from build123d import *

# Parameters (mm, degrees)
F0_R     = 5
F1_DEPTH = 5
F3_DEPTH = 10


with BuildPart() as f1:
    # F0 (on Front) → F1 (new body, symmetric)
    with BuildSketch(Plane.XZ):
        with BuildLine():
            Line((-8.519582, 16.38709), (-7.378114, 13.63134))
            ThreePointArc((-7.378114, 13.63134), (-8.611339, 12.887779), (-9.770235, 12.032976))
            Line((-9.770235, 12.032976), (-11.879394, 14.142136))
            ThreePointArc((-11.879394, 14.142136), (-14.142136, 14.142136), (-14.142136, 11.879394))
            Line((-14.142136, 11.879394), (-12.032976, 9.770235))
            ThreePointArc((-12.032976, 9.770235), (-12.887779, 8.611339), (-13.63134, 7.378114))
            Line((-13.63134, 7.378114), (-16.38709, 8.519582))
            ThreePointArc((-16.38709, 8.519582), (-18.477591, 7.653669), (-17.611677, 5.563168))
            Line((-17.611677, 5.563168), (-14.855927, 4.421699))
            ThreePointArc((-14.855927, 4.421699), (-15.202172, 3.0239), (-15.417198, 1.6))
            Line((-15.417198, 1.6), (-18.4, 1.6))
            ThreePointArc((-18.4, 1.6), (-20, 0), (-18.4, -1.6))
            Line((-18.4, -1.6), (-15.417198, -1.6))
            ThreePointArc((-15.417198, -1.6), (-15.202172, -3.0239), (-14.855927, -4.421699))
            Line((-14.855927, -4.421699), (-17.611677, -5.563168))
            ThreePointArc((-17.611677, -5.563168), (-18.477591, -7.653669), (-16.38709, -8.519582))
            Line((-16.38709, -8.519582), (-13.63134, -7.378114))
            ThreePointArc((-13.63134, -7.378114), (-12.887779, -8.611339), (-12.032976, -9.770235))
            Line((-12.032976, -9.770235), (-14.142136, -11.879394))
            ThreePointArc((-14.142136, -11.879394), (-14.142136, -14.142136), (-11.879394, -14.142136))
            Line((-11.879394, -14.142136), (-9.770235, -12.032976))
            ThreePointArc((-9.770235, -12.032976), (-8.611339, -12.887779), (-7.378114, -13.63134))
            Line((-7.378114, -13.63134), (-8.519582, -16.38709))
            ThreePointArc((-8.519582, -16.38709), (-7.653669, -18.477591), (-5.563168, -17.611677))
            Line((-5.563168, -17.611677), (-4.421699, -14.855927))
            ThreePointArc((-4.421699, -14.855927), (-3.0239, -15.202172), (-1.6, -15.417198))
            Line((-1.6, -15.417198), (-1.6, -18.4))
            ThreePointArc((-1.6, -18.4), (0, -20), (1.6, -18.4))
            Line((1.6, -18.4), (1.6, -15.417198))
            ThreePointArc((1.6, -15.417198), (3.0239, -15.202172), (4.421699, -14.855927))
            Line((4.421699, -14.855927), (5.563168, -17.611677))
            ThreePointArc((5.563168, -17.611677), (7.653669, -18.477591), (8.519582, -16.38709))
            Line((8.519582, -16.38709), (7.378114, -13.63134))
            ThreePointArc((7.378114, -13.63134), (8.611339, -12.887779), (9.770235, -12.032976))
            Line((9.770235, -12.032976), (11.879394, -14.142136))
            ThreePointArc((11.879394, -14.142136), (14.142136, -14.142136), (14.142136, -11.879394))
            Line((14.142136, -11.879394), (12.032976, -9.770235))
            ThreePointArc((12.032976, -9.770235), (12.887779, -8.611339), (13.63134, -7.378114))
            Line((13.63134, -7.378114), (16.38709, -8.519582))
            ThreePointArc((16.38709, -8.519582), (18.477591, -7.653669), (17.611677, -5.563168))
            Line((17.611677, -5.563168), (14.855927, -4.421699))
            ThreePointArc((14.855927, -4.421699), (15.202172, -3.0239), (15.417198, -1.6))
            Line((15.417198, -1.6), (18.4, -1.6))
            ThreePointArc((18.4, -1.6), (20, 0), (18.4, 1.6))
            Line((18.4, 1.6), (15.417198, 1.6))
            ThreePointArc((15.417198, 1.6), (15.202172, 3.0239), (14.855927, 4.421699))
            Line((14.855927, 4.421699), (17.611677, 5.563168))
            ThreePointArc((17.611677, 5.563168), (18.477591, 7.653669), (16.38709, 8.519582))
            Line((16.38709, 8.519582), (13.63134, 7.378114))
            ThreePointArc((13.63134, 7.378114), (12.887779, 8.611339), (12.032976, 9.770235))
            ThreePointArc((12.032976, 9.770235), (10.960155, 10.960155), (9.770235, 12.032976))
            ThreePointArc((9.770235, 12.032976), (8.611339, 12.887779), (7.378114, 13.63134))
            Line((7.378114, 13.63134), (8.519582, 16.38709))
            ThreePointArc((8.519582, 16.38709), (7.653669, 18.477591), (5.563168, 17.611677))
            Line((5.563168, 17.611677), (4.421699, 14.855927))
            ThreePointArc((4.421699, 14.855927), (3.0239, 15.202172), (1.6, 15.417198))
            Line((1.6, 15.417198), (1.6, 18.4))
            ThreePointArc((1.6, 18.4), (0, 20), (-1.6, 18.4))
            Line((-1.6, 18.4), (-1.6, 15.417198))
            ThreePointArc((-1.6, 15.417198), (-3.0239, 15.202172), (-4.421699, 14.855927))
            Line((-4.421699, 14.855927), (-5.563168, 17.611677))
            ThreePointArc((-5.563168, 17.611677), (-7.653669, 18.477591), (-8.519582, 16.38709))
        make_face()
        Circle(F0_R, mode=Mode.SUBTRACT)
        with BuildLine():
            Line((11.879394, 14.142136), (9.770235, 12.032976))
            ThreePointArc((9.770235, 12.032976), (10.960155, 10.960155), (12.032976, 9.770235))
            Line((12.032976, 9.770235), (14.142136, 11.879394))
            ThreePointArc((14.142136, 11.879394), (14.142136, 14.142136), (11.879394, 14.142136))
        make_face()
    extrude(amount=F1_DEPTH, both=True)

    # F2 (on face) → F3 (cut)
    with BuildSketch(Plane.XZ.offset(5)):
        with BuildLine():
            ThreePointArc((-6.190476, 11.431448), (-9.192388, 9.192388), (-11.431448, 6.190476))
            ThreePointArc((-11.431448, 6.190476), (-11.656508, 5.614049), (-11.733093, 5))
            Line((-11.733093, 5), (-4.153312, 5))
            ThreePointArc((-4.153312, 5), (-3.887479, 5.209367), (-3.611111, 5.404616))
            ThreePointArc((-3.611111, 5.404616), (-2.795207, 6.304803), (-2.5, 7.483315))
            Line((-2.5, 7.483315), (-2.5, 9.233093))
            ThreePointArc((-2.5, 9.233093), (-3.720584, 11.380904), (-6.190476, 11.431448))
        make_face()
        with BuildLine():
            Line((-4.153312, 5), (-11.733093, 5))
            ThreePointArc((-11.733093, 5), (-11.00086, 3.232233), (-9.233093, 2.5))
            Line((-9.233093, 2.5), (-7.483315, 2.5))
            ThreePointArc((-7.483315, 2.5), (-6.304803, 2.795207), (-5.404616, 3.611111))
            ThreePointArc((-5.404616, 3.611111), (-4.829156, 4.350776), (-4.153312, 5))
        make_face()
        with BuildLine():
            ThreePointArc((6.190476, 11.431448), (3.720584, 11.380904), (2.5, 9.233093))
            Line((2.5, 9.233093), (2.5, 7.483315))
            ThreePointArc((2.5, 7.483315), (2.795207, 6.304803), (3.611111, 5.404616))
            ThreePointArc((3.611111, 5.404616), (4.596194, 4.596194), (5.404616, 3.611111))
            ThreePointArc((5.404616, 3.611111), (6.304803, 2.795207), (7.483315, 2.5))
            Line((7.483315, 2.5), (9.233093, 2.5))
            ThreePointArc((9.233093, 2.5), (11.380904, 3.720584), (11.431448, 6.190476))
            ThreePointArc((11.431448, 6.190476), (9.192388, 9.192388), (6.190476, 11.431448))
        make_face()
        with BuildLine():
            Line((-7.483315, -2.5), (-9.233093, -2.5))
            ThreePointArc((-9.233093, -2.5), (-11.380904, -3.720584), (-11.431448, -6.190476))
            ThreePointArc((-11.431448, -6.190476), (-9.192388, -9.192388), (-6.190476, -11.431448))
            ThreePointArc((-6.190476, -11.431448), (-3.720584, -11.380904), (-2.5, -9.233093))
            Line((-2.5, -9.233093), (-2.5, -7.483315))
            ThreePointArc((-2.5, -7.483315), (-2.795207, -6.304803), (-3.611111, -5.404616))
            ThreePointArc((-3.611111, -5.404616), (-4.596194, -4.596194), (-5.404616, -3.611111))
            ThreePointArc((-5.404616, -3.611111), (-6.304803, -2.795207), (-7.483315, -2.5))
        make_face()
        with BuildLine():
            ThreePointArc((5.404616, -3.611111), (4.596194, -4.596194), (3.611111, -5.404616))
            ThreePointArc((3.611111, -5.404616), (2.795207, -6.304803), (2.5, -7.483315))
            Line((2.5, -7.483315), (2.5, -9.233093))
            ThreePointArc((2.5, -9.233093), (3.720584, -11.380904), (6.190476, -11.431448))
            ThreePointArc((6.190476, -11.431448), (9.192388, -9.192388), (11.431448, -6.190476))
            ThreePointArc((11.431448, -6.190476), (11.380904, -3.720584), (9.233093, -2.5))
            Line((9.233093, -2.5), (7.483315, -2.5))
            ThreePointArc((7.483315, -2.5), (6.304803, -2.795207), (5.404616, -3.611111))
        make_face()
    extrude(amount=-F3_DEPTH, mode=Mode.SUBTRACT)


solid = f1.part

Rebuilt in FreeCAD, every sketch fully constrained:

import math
import FreeCAD as App
import Part
import Sketcher

V = App.Vector
Q = App.Units.Quantity

doc = App.newDocument("Part")
body = doc.addObject("PartDesign::Body", "Body")

# Sketch on XZ plane
sketch1 = body.newObject("Sketcher::SketchObject", "Sketch")
sketch1.AttachmentSupport = (doc.getObject("XZ_Plane"), [""])
sketch1.MapMode = "FlatFace"
sketch1.addGeometry(Part.LineSegment(V(-8.519582, 16.38709, 0), V(-7.378114, 13.63134, 0)), False)
sketch1.addGeometry(Part.ArcOfCircle(Part.Circle(V(-0.00003, 0.000043, 0), V(0, 0, 1), 15.499948), math.radians(118.424937), math.radians(129.075058)), False)
sketch1.addGeometry(Part.LineSegment(V(-9.770235, 12.032976, 0), V(-11.879394, 14.142136, 0)), False)
sketch1.addGeometry(Part.ArcOfCircle(Part.Circle(V(-13.010765, 13.010765, 0), V(0, 0, 1), 1.6), math.radians(45), math.radians(225)), False)
sketch1.addGeometry(Part.LineSegment(V(-14.142136, 11.879394, 0), V(-12.032976, 9.770235, 0)), False)
sketch1.addGeometry(Part.ArcOfCircle(Part.Circle(V(-0.000043, 0.00003, 0), V(0, 0, 1), 15.499948), math.radians(140.924942), math.radians(151.575063)), False)
sketch1.addGeometry(Part.LineSegment(V(-13.63134, 7.378114, 0), V(-16.38709, 8.519582, 0)), False)
sketch1.addGeometry(Part.ArcOfCircle(Part.Circle(V(-16.999384, 7.041375, 0), V(0, 0, 1), 1.6), math.radians(67.499973), math.radians(247.50002)), False)
sketch1.addGeometry(Part.LineSegment(V(-17.611677, 5.563168, 0), V(-14.855927, 4.421699, 0)), False)
sketch1.addGeometry(Part.ArcOfCircle(Part.Circle(V(-0.000096, 0.000018, 0), V(0, 0, 1), 15.499902), math.radians(163.42492), math.radians(174.075073)), False)
sketch1.addGeometry(Part.LineSegment(V(-15.417198, 1.6, 0), V(-18.4, 1.6, 0)), False)
sketch1.addGeometry(Part.ArcOfCircle(Part.Circle(V(-18.4, 0, 0), V(0, 0, 1), 1.6), math.radians(90), math.radians(270)), False)
sketch1.addGeometry(Part.LineSegment(V(-18.4, -1.6, 0), V(-15.417198, -1.6, 0)), False)
sketch1.addGeometry(Part.ArcOfCircle(Part.Circle(V(-0.000096, -0.000018, 0), V(0, 0, 1), 15.499902), math.radians(-174.075073), math.radians(-163.42492)), False)
sketch1.addGeometry(Part.LineSegment(V(-14.855927, -4.421699, 0), V(-17.611677, -5.563168, 0)), False)
sketch1.addGeometry(Part.ArcOfCircle(Part.Circle(V(-16.999384, -7.041375, 0), V(0, 0, 1), 1.6), math.radians(112.49998), math.radians(292.500027)), False)
sketch1.addGeometry(Part.LineSegment(V(-16.38709, -8.519582, 0), V(-13.63134, -7.378114, 0)), False)
sketch1.addGeometry(Part.ArcOfCircle(Part.Circle(V(-0.000043, -0.00003, 0), V(0, 0, 1), 15.499948), math.radians(-151.575063), math.radians(-140.924942)), False)
sketch1.addGeometry(Part.LineSegment(V(-12.032976, -9.770235, 0), V(-14.142136, -11.879394, 0)), False)
sketch1.addGeometry(Part.ArcOfCircle(Part.Circle(V(-13.010765, -13.010765, 0), V(0, 0, 1), 1.6), math.radians(135), math.radians(315)), False)
sketch1.addGeometry(Part.LineSegment(V(-11.879394, -14.142136, 0), V(-9.770235, -12.032976, 0)), False)
sketch1.addGeometry(Part.ArcOfCircle(Part.Circle(V(-0.00003, -0.000043, 0), V(0, 0, 1), 15.499948), math.radians(-129.075058), math.radians(-118.424937)), False)
sketch1.addGeometry(Part.LineSegment(V(-7.378114, -13.63134, 0), V(-8.519582, -16.38709, 0)), False)
sketch1.addGeometry(Part.ArcOfCircle(Part.Circle(V(-7.041375, -16.999384, 0), V(0, 0, 1), 1.6), math.radians(157.499973), math.radians(337.50002)), False)
sketch1.addGeometry(Part.LineSegment(V(-5.563168, -17.611677, 0), V(-4.421699, -14.855927, 0)), False)
sketch1.addGeometry(Part.ArcOfCircle(Part.Circle(V(-0.000018, -0.000096, 0), V(0, 0, 1), 15.499902), math.radians(-106.57508), math.radians(-95.924927)), False)
sketch1.addGeometry(Part.LineSegment(V(-1.6, -15.417198, 0), V(-1.6, -18.4, 0)), False)
sketch1.addGeometry(Part.ArcOfCircle(Part.Circle(V(0, -18.4, 0), V(0, 0, 1), 1.6), math.radians(180), math.radians(360)), False)
sketch1.addGeometry(Part.LineSegment(V(1.6, -18.4, 0), V(1.6, -15.417198, 0)), False)
sketch1.addGeometry(Part.ArcOfCircle(Part.Circle(V(0.000018, -0.000096, 0), V(0, 0, 1), 15.499902), math.radians(-84.075073), math.radians(-73.42492)), False)
sketch1.addGeometry(Part.LineSegment(V(4.421699, -14.855927, 0), V(5.563168, -17.611677, 0)), False)
sketch1.addGeometry(Part.ArcOfCircle(Part.Circle(V(7.041375, -16.999384, 0), V(0, 0, 1), 1.6), math.radians(-157.50002), math.radians(22.500027)), False)
sketch1.addGeometry(Part.LineSegment(V(8.519582, -16.38709, 0), V(7.378114, -13.63134, 0)), False)
sketch1.addGeometry(Part.ArcOfCircle(Part.Circle(V(0.00003, -0.000043, 0), V(0, 0, 1), 15.499948), math.radians(-61.575063), math.radians(-50.924942)), False)
sketch1.addGeometry(Part.LineSegment(V(9.770235, -12.032976, 0), V(11.879394, -14.142136, 0)), False)
sketch1.addGeometry(Part.ArcOfCircle(Part.Circle(V(13.010765, -13.010765, 0), V(0, 0, 1), 1.6), math.radians(-135), math.radians(45)), False)
sketch1.addGeometry(Part.LineSegment(V(14.142136, -11.879394, 0), V(12.032976, -9.770235, 0)), False)
sketch1.addGeometry(Part.ArcOfCircle(Part.Circle(V(0.000043, -0.00003, 0), V(0, 0, 1), 15.499948), math.radians(-39.075058), math.radians(-28.424937)), False)
sketch1.addGeometry(Part.LineSegment(V(13.63134, -7.378114, 0), V(16.38709, -8.519582, 0)), False)
sketch1.addGeometry(Part.ArcOfCircle(Part.Circle(V(16.999384, -7.041375, 0), V(0, 0, 1), 1.6), math.radians(-112.500027), math.radians(67.50002)), False)
sketch1.addGeometry(Part.LineSegment(V(17.611677, -5.563168, 0), V(14.855927, -4.421699, 0)), False)
sketch1.addGeometry(Part.ArcOfCircle(Part.Circle(V(0.000096, -0.000018, 0), V(0, 0, 1), 15.499902), math.radians(-16.57508), math.radians(-5.924927)), False)
sketch1.addGeometry(Part.LineSegment(V(15.417198, -1.6, 0), V(18.4, -1.6, 0)), False)
sketch1.addGeometry(Part.ArcOfCircle(Part.Circle(V(18.4, 0, 0), V(0, 0, 1), 1.6), math.radians(-90), math.radians(90)), False)
sketch1.addGeometry(Part.LineSegment(V(18.4, 1.6, 0), V(15.417198, 1.6, 0)), False)
sketch1.addGeometry(Part.ArcOfCircle(Part.Circle(V(0.000096, 0.000018, 0), V(0, 0, 1), 15.499902), math.radians(5.924927), math.radians(16.57508)), False)
sketch1.addGeometry(Part.LineSegment(V(14.855927, 4.421699, 0), V(17.611677, 5.563168, 0)), False)
sketch1.addGeometry(Part.ArcOfCircle(Part.Circle(V(16.999384, 7.041375, 0), V(0, 0, 1), 1.6), math.radians(-67.50002), math.radians(112.500027)), False)
sketch1.addGeometry(Part.LineSegment(V(16.38709, 8.519582, 0), V(13.63134, 7.378114, 0)), False)
sketch1.addGeometry(Part.ArcOfCircle(Part.Circle(V(0.000043, 0.00003, 0), V(0, 0, 1), 15.499948), math.radians(28.424937), math.radians(39.075058)), False)
sketch1.addGeometry(Part.LineSegment(V(12.032976, 9.770235, 0), V(14.142136, 11.879394, 0)), False)
sketch1.addGeometry(Part.ArcOfCircle(Part.Circle(V(13.010765, 13.010765, 0), V(0, 0, 1), 1.6), math.radians(-45), math.radians(135)), False)
sketch1.addGeometry(Part.LineSegment(V(11.879394, 14.142136, 0), V(9.770235, 12.032976, 0)), False)
sketch1.addGeometry(Part.ArcOfCircle(Part.Circle(V(0.00003, 0.000043, 0), V(0, 0, 1), 15.499948), math.radians(50.924942), math.radians(61.575063)), False)
sketch1.addGeometry(Part.LineSegment(V(7.378114, 13.63134, 0), V(8.519582, 16.38709, 0)), False)
sketch1.addGeometry(Part.ArcOfCircle(Part.Circle(V(7.041375, 16.999384, 0), V(0, 0, 1), 1.6), math.radians(-22.500027), math.radians(157.50002)), False)
sketch1.addGeometry(Part.LineSegment(V(5.563168, 17.611677, 0), V(4.421699, 14.855927, 0)), False)
sketch1.addGeometry(Part.ArcOfCircle(Part.Circle(V(0.000018, 0.000096, 0), V(0, 0, 1), 15.499902), math.radians(73.42492), math.radians(84.075073)), False)
sketch1.addGeometry(Part.LineSegment(V(1.6, 15.417198, 0), V(1.6, 18.4, 0)), False)
sketch1.addGeometry(Part.ArcOfCircle(Part.Circle(V(0, 18.4, 0), V(0, 0, 1), 1.6), math.radians(0), math.radians(180)), False)
sketch1.addGeometry(Part.LineSegment(V(-1.6, 18.4, 0), V(-1.6, 15.417198, 0)), False)
sketch1.addGeometry(Part.ArcOfCircle(Part.Circle(V(-0.000018, 0.000096, 0), V(0, 0, 1), 15.499902), math.radians(95.924927), math.radians(106.57508)), False)
sketch1.addGeometry(Part.LineSegment(V(-4.421699, 14.855927, 0), V(-5.563168, 17.611677, 0)), False)
sketch1.addGeometry(Part.ArcOfCircle(Part.Circle(V(-7.041375, 16.999384, 0), V(0, 0, 1), 1.6), math.radians(22.49998), math.radians(202.500027)), False)
sketch1.addGeometry(Part.Circle(V(0, 0, 0), V(0, 0, 1), 5), False)
sketch1.addConstraint(Sketcher.Constraint("Coincident", 0, 2, 1, 1))
sketch1.addConstraint(Sketcher.Constraint("Coincident", 1, 2, 2, 1))
sketch1.addConstraint(Sketcher.Constraint("Tangent", 2, 2, 3, 1))
sketch1.addConstraint(Sketcher.Constraint("Tangent", 3, 2, 4, 1))
sketch1.addConstraint(Sketcher.Constraint("Coincident", 4, 2, 5, 1))
sketch1.addConstraint(Sketcher.Constraint("Coincident", 5, 2, 6, 1))
sketch1.addConstraint(Sketcher.Constraint("Tangent", 6, 2, 7, 1))
sketch1.addConstraint(Sketcher.Constraint("Tangent", 7, 2, 8, 1))
sketch1.addConstraint(Sketcher.Constraint("Coincident", 8, 2, 9, 1))
sketch1.addConstraint(Sketcher.Constraint("Coincident", 9, 2, 10, 1))
sketch1.addConstraint(Sketcher.Constraint("Tangent", 10, 2, 11, 1))
sketch1.addConstraint(Sketcher.Constraint("Tangent", 11, 2, 12, 1))
sketch1.addConstraint(Sketcher.Constraint("Coincident", 12, 2, 13, 1))
sketch1.addConstraint(Sketcher.Constraint("Coincident", 13, 2, 14, 1))
sketch1.addConstraint(Sketcher.Constraint("Tangent", 14, 2, 15, 1))
sketch1.addConstraint(Sketcher.Constraint("Tangent", 15, 2, 16, 1))
sketch1.addConstraint(Sketcher.Constraint("Coincident", 16, 2, 17, 1))
sketch1.addConstraint(Sketcher.Constraint("Coincident", 17, 2, 18, 1))
sketch1.addConstraint(Sketcher.Constraint("Tangent", 18, 2, 19, 1))
sketch1.addConstraint(Sketcher.Constraint("Tangent", 19, 2, 20, 1))
sketch1.addConstraint(Sketcher.Constraint("Coincident", 20, 2, 21, 1))
sketch1.addConstraint(Sketcher.Constraint("Coincident", 21, 2, 22, 1))
sketch1.addConstraint(Sketcher.Constraint("Tangent", 22, 2, 23, 1))
sketch1.addConstraint(Sketcher.Constraint("Tangent", 23, 2, 24, 1))
sketch1.addConstraint(Sketcher.Constraint("Coincident", 24, 2, 25, 1))
sketch1.addConstraint(Sketcher.Constraint("Coincident", 25, 2, 26, 1))
sketch1.addConstraint(Sketcher.Constraint("Tangent", 26, 2, 27, 1))
sketch1.addConstraint(Sketcher.Constraint("Tangent", 27, 2, 28, 1))
sketch1.addConstraint(Sketcher.Constraint("Coincident", 28, 2, 29, 1))
sketch1.addConstraint(Sketcher.Constraint("Coincident", 29, 2, 30, 1))
sketch1.addConstraint(Sketcher.Constraint("Tangent", 30, 2, 31, 1))
sketch1.addConstraint(Sketcher.Constraint("Tangent", 31, 2, 32, 1))
sketch1.addConstraint(Sketcher.Constraint("Coincident", 32, 2, 33, 1))
sketch1.addConstraint(Sketcher.Constraint("Coincident", 33, 2, 34, 1))
sketch1.addConstraint(Sketcher.Constraint("Tangent", 34, 2, 35, 1))
sketch1.addConstraint(Sketcher.Constraint("Tangent", 35, 2, 36, 1))
sketch1.addConstraint(Sketcher.Constraint("Coincident", 36, 2, 37, 1))
sketch1.addConstraint(Sketcher.Constraint("Coincident", 37, 2, 38, 1))
sketch1.addConstraint(Sketcher.Constraint("Tangent", 38, 2, 39, 1))
sketch1.addConstraint(Sketcher.Constraint("Tangent", 39, 2, 40, 1))
sketch1.addConstraint(Sketcher.Constraint("Coincident", 40, 2, 41, 1))
sketch1.addConstraint(Sketcher.Constraint("Coincident", 41, 2, 42, 1))
sketch1.addConstraint(Sketcher.Constraint("Tangent", 42, 2, 43, 1))
sketch1.addConstraint(Sketcher.Constraint("Tangent", 43, 2, 44, 1))
sketch1.addConstraint(Sketcher.Constraint("Coincident", 44, 2, 45, 1))
sketch1.addConstraint(Sketcher.Constraint("Coincident", 45, 2, 46, 1))
sketch1.addConstraint(Sketcher.Constraint("Tangent", 46, 2, 47, 1))
sketch1.addConstraint(Sketcher.Constraint("Tangent", 47, 2, 48, 1))
sketch1.addConstraint(Sketcher.Constraint("Coincident", 48, 2, 49, 1))
sketch1.addConstraint(Sketcher.Constraint("Coincident", 49, 2, 50, 1))
sketch1.addConstraint(Sketcher.Constraint("Tangent", 50, 2, 51, 1))
sketch1.addConstraint(Sketcher.Constraint("Tangent", 51, 2, 52, 1))
sketch1.addConstraint(Sketcher.Constraint("Coincident", 52, 2, 53, 1))
sketch1.addConstraint(Sketcher.Constraint("Coincident", 53, 2, 54, 1))
sketch1.addConstraint(Sketcher.Constraint("Tangent", 54, 2, 55, 1))
sketch1.addConstraint(Sketcher.Constraint("Tangent", 55, 2, 56, 1))
sketch1.addConstraint(Sketcher.Constraint("Coincident", 56, 2, 57, 1))
sketch1.addConstraint(Sketcher.Constraint("Coincident", 57, 2, 58, 1))
sketch1.addConstraint(Sketcher.Constraint("Tangent", 58, 2, 59, 1))
sketch1.addConstraint(Sketcher.Constraint("Tangent", 59, 2, 60, 1))
sketch1.addConstraint(Sketcher.Constraint("Coincident", 60, 2, 61, 1))
sketch1.addConstraint(Sketcher.Constraint("Coincident", 61, 2, 62, 1))
sketch1.addConstraint(Sketcher.Constraint("Tangent", 62, 2, 63, 1))
sketch1.addConstraint(Sketcher.Constraint("Tangent", 63, 2, 0, 1))
sketch1.addConstraint(Sketcher.Constraint("Horizontal", 10))
sketch1.addConstraint(Sketcher.Constraint("Horizontal", 12))
sketch1.addConstraint(Sketcher.Constraint("Vertical", 26))
sketch1.addConstraint(Sketcher.Constraint("Vertical", 28))
sketch1.addConstraint(Sketcher.Constraint("Horizontal", 42))
sketch1.addConstraint(Sketcher.Constraint("Horizontal", 44))
sketch1.addConstraint(Sketcher.Constraint("Vertical", 58))
sketch1.addConstraint(Sketcher.Constraint("Vertical", 60))
sketch1.addConstraint(Sketcher.Constraint("Coincident", 64, 3, -1, 1))
sketch1.addConstraint(Sketcher.Constraint("Equal", 1, 5))
sketch1.addConstraint(Sketcher.Constraint("Equal", 3, 7))
sketch1.addConstraint(Sketcher.Constraint("Equal", 7, 11))
sketch1.addConstraint(Sketcher.Constraint("Equal", 9, 13))
sketch1.addConstraint(Sketcher.Constraint("Equal", 11, 15))
sketch1.addConstraint(Sketcher.Constraint("Equal", 5, 17))
sketch1.addConstraint(Sketcher.Constraint("Equal", 15, 19))
sketch1.addConstraint(Sketcher.Constraint("Equal", 17, 21))
sketch1.addConstraint(Sketcher.Constraint("Equal", 19, 23))
sketch1.addConstraint(Sketcher.Constraint("Equal", 13, 25))
sketch1.addConstraint(Sketcher.Constraint("Equal", 23, 27))
sketch1.addConstraint(Sketcher.Constraint("Equal", 25, 29))
sketch1.addConstraint(Sketcher.Constraint("Equal", 27, 31))
sketch1.addConstraint(Sketcher.Constraint("Equal", 21, 33))
sketch1.addConstraint(Sketcher.Constraint("Equal", 31, 35))
sketch1.addConstraint(Sketcher.Constraint("Equal", 33, 37))
sketch1.addConstraint(Sketcher.Constraint("Equal", 35, 39))
sketch1.addConstraint(Sketcher.Constraint("Equal", 29, 41))
sketch1.addConstraint(Sketcher.Constraint("Equal", 39, 43))
sketch1.addConstraint(Sketcher.Constraint("Equal", 41, 45))
sketch1.addConstraint(Sketcher.Constraint("Equal", 43, 47))
sketch1.addConstraint(Sketcher.Constraint("Equal", 37, 49))
sketch1.addConstraint(Sketcher.Constraint("Equal", 47, 51))
sketch1.addConstraint(Sketcher.Constraint("Equal", 49, 53))
sketch1.addConstraint(Sketcher.Constraint("Equal", 51, 55))
sketch1.addConstraint(Sketcher.Constraint("Equal", 45, 57))
sketch1.addConstraint(Sketcher.Constraint("Equal", 55, 59))
sketch1.addConstraint(Sketcher.Constraint("Equal", 57, 61))
sketch1.addConstraint(Sketcher.Constraint("Equal", 59, 63))
sketch1.addConstraint(Sketcher.Constraint("Symmetric", 1, 3, 33, 3, -1, 1))
sketch1.addConstraint(Sketcher.Constraint("Symmetric", 3, 3, 35, 3, -1, 1))
sketch1.addConstraint(Sketcher.Constraint("Symmetric", 5, 3, 37, 3, -1, 1))
sketch1.addConstraint(Sketcher.Constraint("Symmetric", 7, 3, 39, 3, -1, 1))
sketch1.addConstraint(Sketcher.Constraint("Symmetric", 9, 3, 41, 3, -1, 1))
sketch1.addConstraint(Sketcher.Constraint("Symmetric", 11, 3, 43, 3, -1, 1))
sketch1.addConstraint(Sketcher.Constraint("Symmetric", 13, 3, 45, 3, -1, 1))
sketch1.addConstraint(Sketcher.Constraint("Symmetric", 15, 3, 47, 3, -1, 1))
sketch1.addConstraint(Sketcher.Constraint("Symmetric", 17, 3, 49, 3, -1, 1))
sketch1.addConstraint(Sketcher.Constraint("Symmetric", 19, 3, 51, 3, -1, 1))
sketch1.addConstraint(Sketcher.Constraint("Symmetric", 21, 3, 53, 3, -1, 1))
sketch1.addConstraint(Sketcher.Constraint("Symmetric", 23, 3, 55, 3, -1, 1))
sketch1.addConstraint(Sketcher.Constraint("Symmetric", 25, 3, 57, 3, -1, 1))
sketch1.addConstraint(Sketcher.Constraint("Symmetric", 27, 3, 59, 3, -1, 1))
sketch1.addConstraint(Sketcher.Constraint("Symmetric", 29, 3, 61, 3, -1, 1))
sketch1.addConstraint(Sketcher.Constraint("Symmetric", 31, 3, 63, 3, -1, 1))
sketch1.addConstraint(Sketcher.Constraint("Symmetric", 25, 3, 29, 3, -2))
sketch1.addConstraint(Sketcher.Constraint("Symmetric", 23, 3, 31, 3, -2))
sketch1.addConstraint(Sketcher.Constraint("Symmetric", 21, 3, 33, 3, -2))
sketch1.addConstraint(Sketcher.Constraint("Symmetric", 19, 3, 35, 3, -2))
sketch1.addConstraint(Sketcher.Constraint("Symmetric", 17, 3, 37, 3, -2))
sketch1.addConstraint(Sketcher.Constraint("Symmetric", 15, 3, 39, 3, -2))
sketch1.addConstraint(Sketcher.Constraint("Symmetric", 13, 3, 41, 3, -2))
sketch1.addConstraint(Sketcher.Constraint("PointOnObject", 11, 3, -1))
sketch1.addConstraint(Sketcher.Constraint("PointOnObject", 27, 3, -2))
sketch1.addConstraint(Sketcher.Constraint("Parallel", 2, 4))
sketch1.addConstraint(Sketcher.Constraint("Parallel", 6, 8))
sketch1.addConstraint(Sketcher.Constraint("Perpendicular", 0, 14))
sketch1.addConstraint(Sketcher.Constraint("Parallel", 14, 16))
sketch1.addConstraint(Sketcher.Constraint("Perpendicular", 4, 18))
sketch1.addConstraint(Sketcher.Constraint("Parallel", 18, 20))
sketch1.addConstraint(Sketcher.Constraint("Perpendicular", 8, 22))
sketch1.addConstraint(Sketcher.Constraint("Parallel", 22, 24))
sketch1.addConstraint(Sketcher.Constraint("Perpendicular", 16, 30))
sketch1.addConstraint(Sketcher.Constraint("Parallel", 30, 32))
sketch1.addConstraint(Sketcher.Constraint("Perpendicular", 20, 34))
sketch1.addConstraint(Sketcher.Constraint("Parallel", 34, 36))
sketch1.addConstraint(Sketcher.Constraint("Perpendicular", 24, 38))
sketch1.addConstraint(Sketcher.Constraint("Parallel", 38, 40))
sketch1.addConstraint(Sketcher.Constraint("Perpendicular", 32, 46))
sketch1.addConstraint(Sketcher.Constraint("Parallel", 46, 48))
sketch1.addConstraint(Sketcher.Constraint("Perpendicular", 36, 50))
sketch1.addConstraint(Sketcher.Constraint("Parallel", 50, 52))
sketch1.addConstraint(Sketcher.Constraint("Perpendicular", 40, 54))
sketch1.addConstraint(Sketcher.Constraint("Parallel", 54, 56))
sketch1.addConstraint(Sketcher.Constraint("Perpendicular", 48, 62))
sketch1.addConstraint(Sketcher.Constraint("Horizontal", 24, 2, 29, 2))
sketch1.addConstraint(Sketcher.Constraint("Horizontal", 20, 2, 33, 2))
sketch1.addConstraint(Sketcher.Constraint("Equal", 44, 26))
sketch1.addConstraint(Sketcher.Constraint("Equal", 0, 2))
sketch1.addConstraint(Sketcher.Constraint("Equal", 2, 4))
sketch1.addConstraint(Sketcher.Constraint("Equal", 4, 6))
sketch1.addConstraint(Sketcher.Constraint("Equal", 6, 8))
sketch1.addConstraint(Sketcher.Constraint("Equal", 22, 24))
sketch1.addConstraint(Sketcher.Constraint("Diameter", 64, Q("10 mm")))
sketch1.addConstraint(Sketcher.Constraint("Radius", 3, Q("1.6 mm")))
sketch1.addConstraint(Sketcher.Constraint("Angle", 0, Q("-67.500018 deg")))
sketch1.addConstraint(Sketcher.Constraint("DistanceX", 11, 3, -1, 1, Q("18.4 mm")))
sketch1.addConstraint(Sketcher.Constraint("DistanceY", 27, 3, -1, 1, Q("18.4 mm")))
sketch1.addConstraint(Sketcher.Constraint("DistanceX", 10, 2, 10, 1, Q("2.982802 mm")))
sketch1.addConstraint(Sketcher.Constraint("Radius", 1, Q("15.499948 mm")))
sketch1.addConstraint(Sketcher.Constraint("Radius", 9, Q("15.499902 mm")))
sketch1.addConstraint(Sketcher.Constraint("Distance", 0, Q("2.982802 mm")))
sketch1.addConstraint(Sketcher.Constraint("DistanceY", -1, 1, 8, 2, Q("4.421699 mm")))
sketch1.addConstraint(Sketcher.Constraint("DistanceX", 24, 2, -1, 1, Q("4.421699 mm")))
sketch1.addConstraint(Sketcher.Constraint("DistanceY", -1, 1, 0, 2, Q("13.63134 mm")))
sketch1.addConstraint(Sketcher.Constraint("DistanceX", 5, 2, -1, 1, Q("13.63134 mm")))
sketch1.addConstraint(Sketcher.Constraint("DistanceX", 3, 3, -1, 1, Q("13.010765 mm")))
sketch1.addConstraint(Sketcher.Constraint("DistanceY", -1, 1, 3, 3, Q("13.010765 mm")))
pad1 = body.newObject("PartDesign::Pad", "Pad")
pad1.Profile = sketch1
pad1.Length = 10
pad1.Midplane = True

# Sketch on XZ plane
sketch2 = body.newObject("Sketcher::SketchObject", "Sketch001")
sketch2.AttachmentSupport = (doc.getObject("XZ_Plane"), [""])
sketch2.MapMode = "FlatFace"
sketch2.AttachmentOffset = App.Placement(V(0, 0, 5), App.Rotation())
sketch2.addGeometry(Part.ArcOfCircle(Part.Circle(V(0.000001, -0.000001, 0), V(0, 0, 1), 13.000002), math.radians(118.436892), math.radians(151.563108)), False)
sketch2.addGeometry(Part.ArcOfCircle(Part.Circle(V(-9.233078, 4.999995, 0), V(0, 0, 1), 2.500015), math.radians(151.56318), math.radians(179.999889)), False)
sketch2.addGeometry(Part.ArcOfCircle(Part.Circle(V(-9.233093, 5, 0), V(0, 0, 1), 2.5), math.radians(179.999996), math.radians(270.000004)), False)
sketch2.addGeometry(Part.LineSegment(V(-9.233093, 2.5, 0), V(-7.483315, 2.5, 0)), False)
sketch2.addGeometry(Part.ArcOfCircle(Part.Circle(V(-7.483313, 4.999998, 0), V(0, 0, 1), 2.499998), math.radians(-90.000039), math.radians(-33.748965)), False)
sketch2.addGeometry(Part.ArcOfCircle(Part.Circle(V(-0.000004, 0.000005, 0), V(0, 0, 1), 6.499994), math.radians(129.715139), math.radians(146.251028)), False)
sketch2.addGeometry(Part.ArcOfCircle(Part.Circle(V(0.000037, -0.000054, 0), V(0, 0, 1), 6.500065), math.radians(123.748994), math.radians(129.715083)), False)
sketch2.addGeometry(Part.ArcOfCircle(Part.Circle(V(-4.999998, 7.483313, 0), V(0, 0, 1), 2.499998), math.radians(-56.251035), math.radians(0.000039)), False)
sketch2.addGeometry(Part.LineSegment(V(-2.5, 7.483315, 0), V(-2.5, 9.233093, 0)), False)
sketch2.addGeometry(Part.ArcOfCircle(Part.Circle(V(-5, 9.233092, 0), V(0, 0, 1), 2.5), math.radians(0.000015), math.radians(118.436881)), False)
sketch2.addGeometry(Part.ArcOfCircle(Part.Circle(V(5, 9.233092, 0), V(0, 0, 1), 2.5), math.radians(61.563119), math.radians(179.999985)), False)
sketch2.addGeometry(Part.LineSegment(V(2.5, 9.233093, 0), V(2.5, 7.483315, 0)), False)
sketch2.addGeometry(Part.ArcOfCircle(Part.Circle(V(4.999998, 7.483313, 0), V(0, 0, 1), 2.499998), math.radians(179.999961), math.radians(236.251035)), False)
sketch2.addGeometry(Part.ArcOfCircle(Part.Circle(V(0.000005, 0.000005, 0), V(0, 0, 1), 6.499993), math.radians(33.748976), math.radians(56.251024)), False)
sketch2.addGeometry(Part.ArcOfCircle(Part.Circle(V(7.483313, 4.999998, 0), V(0, 0, 1), 2.499998), math.radians(-146.251035), math.radians(-89.999961)), False)
sketch2.addGeometry(Part.LineSegment(V(7.483315, 2.5, 0), V(9.233093, 2.5, 0)), False)
sketch2.addGeometry(Part.ArcOfCircle(Part.Circle(V(9.233092, 5, 0), V(0, 0, 1), 2.5), math.radians(-89.999985), math.radians(28.436881)), False)
sketch2.addGeometry(Part.ArcOfCircle(Part.Circle(V(-0.000001, -0.000001, 0), V(0, 0, 1), 13.000002), math.radians(28.436892), math.radians(61.563108)), False)
sketch2.addGeometry(Part.LineSegment(V(-7.483315, -2.5, 0), V(-9.233093, -2.5, 0)), False)
sketch2.addGeometry(Part.ArcOfCircle(Part.Circle(V(-9.233092, -5, 0), V(0, 0, 1), 2.5), math.radians(90.000015), math.radians(208.436881)), False)
sketch2.addGeometry(Part.ArcOfCircle(Part.Circle(V(0.000001, 0.000001, 0), V(0, 0, 1), 13.000002), math.radians(-151.563108), math.radians(-118.436892)), False)
sketch2.addGeometry(Part.ArcOfCircle(Part.Circle(V(-5, -9.233092, 0), V(0, 0, 1), 2.5), math.radians(-118.436881), math.radians(-0.000015)), False)
sketch2.addGeometry(Part.LineSegment(V(-2.5, -9.233093, 0), V(-2.5, -7.483315, 0)), False)
sketch2.addGeometry(Part.ArcOfCircle(Part.Circle(V(-4.999998, -7.483313, 0), V(0, 0, 1), 2.499998), math.radians(-0.000039), math.radians(56.251035)), False)
sketch2.addGeometry(Part.ArcOfCircle(Part.Circle(V(-0.000005, -0.000005, 0), V(0, 0, 1), 6.499993), math.radians(-146.251024), math.radians(-123.748976)), False)
sketch2.addGeometry(Part.ArcOfCircle(Part.Circle(V(-7.483313, -4.999998, 0), V(0, 0, 1), 2.499998), math.radians(33.748965), math.radians(90.000039)), False)
sketch2.addGeometry(Part.ArcOfCircle(Part.Circle(V(0.000005, -0.000005, 0), V(0, 0, 1), 6.499993), math.radians(-56.251024), math.radians(-33.748976)), False)
sketch2.addGeometry(Part.ArcOfCircle(Part.Circle(V(4.999998, -7.483313, 0), V(0, 0, 1), 2.499998), math.radians(123.748965), math.radians(180.000039)), False)
sketch2.addGeometry(Part.LineSegment(V(2.5, -7.483315, 0), V(2.5, -9.233093, 0)), False)
sketch2.addGeometry(Part.ArcOfCircle(Part.Circle(V(5, -9.233092, 0), V(0, 0, 1), 2.5), math.radians(-179.999985), math.radians(-61.563119)), False)
sketch2.addGeometry(Part.ArcOfCircle(Part.Circle(V(-0.000001, 0.000001, 0), V(0, 0, 1), 13.000002), math.radians(-61.563108), math.radians(-28.436892)), False)
sketch2.addGeometry(Part.ArcOfCircle(Part.Circle(V(9.233092, -5, 0), V(0, 0, 1), 2.5), math.radians(-28.436881), math.radians(89.999985)), False)
sketch2.addGeometry(Part.LineSegment(V(9.233093, -2.5, 0), V(7.483315, -2.5, 0)), False)
sketch2.addGeometry(Part.ArcOfCircle(Part.Circle(V(7.483313, -4.999998, 0), V(0, 0, 1), 2.499998), math.radians(89.999961), math.radians(146.251035)), False)
sketch2.addConstraint(Sketcher.Constraint("Coincident", 0, 2, 1, 1))
sketch2.addConstraint(Sketcher.Constraint("Coincident", 1, 2, 2, 1))
sketch2.addConstraint(Sketcher.Constraint("Coincident", 2, 2, 3, 1))
sketch2.addConstraint(Sketcher.Constraint("Coincident", 3, 2, 4, 1))
sketch2.addConstraint(Sketcher.Constraint("Coincident", 4, 2, 5, 2))
sketch2.addConstraint(Sketcher.Constraint("Coincident", 5, 1, 6, 2))
sketch2.addConstraint(Sketcher.Constraint("Coincident", 6, 1, 7, 1))
sketch2.addConstraint(Sketcher.Constraint("Coincident", 7, 2, 8, 1))
sketch2.addConstraint(Sketcher.Constraint("Coincident", 8, 2, 9, 1))
sketch2.addConstraint(Sketcher.Constraint("Coincident", 9, 2, 0, 1))
sketch2.addConstraint(Sketcher.Constraint("Coincident", 10, 2, 11, 1))
sketch2.addConstraint(Sketcher.Constraint("Coincident", 11, 2, 12, 1))
sketch2.addConstraint(Sketcher.Constraint("Coincident", 12, 2, 13, 2))
sketch2.addConstraint(Sketcher.Constraint("Coincident", 13, 1, 14, 1))
sketch2.addConstraint(Sketcher.Constraint("Coincident", 14, 2, 15, 1))
sketch2.addConstraint(Sketcher.Constraint("Coincident", 15, 2, 16, 1))
sketch2.addConstraint(Sketcher.Constraint("Coincident", 16, 2, 17, 1))
sketch2.addConstraint(Sketcher.Constraint("Coincident", 17, 2, 10, 1))
sketch2.addConstraint(Sketcher.Constraint("Coincident", 18, 2, 19, 1))
sketch2.addConstraint(Sketcher.Constraint("Coincident", 19, 2, 20, 1))
sketch2.addConstraint(Sketcher.Constraint("Coincident", 20, 2, 21, 1))
sketch2.addConstraint(Sketcher.Constraint("Coincident", 21, 2, 22, 1))
sketch2.addConstraint(Sketcher.Constraint("Coincident", 22, 2, 23, 1))
sketch2.addConstraint(Sketcher.Constraint("Coincident", 23, 2, 24, 2))
sketch2.addConstraint(Sketcher.Constraint("Coincident", 24, 1, 25, 1))
sketch2.addConstraint(Sketcher.Constraint("Coincident", 25, 2, 18, 1))
sketch2.addConstraint(Sketcher.Constraint("Coincident", 26, 1, 27, 1))
sketch2.addConstraint(Sketcher.Constraint("Coincident", 27, 2, 28, 1))
sketch2.addConstraint(Sketcher.Constraint("Coincident", 28, 2, 29, 1))
sketch2.addConstraint(Sketcher.Constraint("Coincident", 29, 2, 30, 1))
sketch2.addConstraint(Sketcher.Constraint("Coincident", 30, 2, 31, 1))
sketch2.addConstraint(Sketcher.Constraint("Coincident", 31, 2, 32, 1))
sketch2.addConstraint(Sketcher.Constraint("Coincident", 32, 2, 33, 1))
sketch2.addConstraint(Sketcher.Constraint("Coincident", 33, 2, 26, 2))
sketch2.addConstraint(Sketcher.Constraint("Horizontal", 3))
sketch2.addConstraint(Sketcher.Constraint("Vertical", 8))
sketch2.addConstraint(Sketcher.Constraint("Vertical", 11))
sketch2.addConstraint(Sketcher.Constraint("Horizontal", 15))
sketch2.addConstraint(Sketcher.Constraint("Horizontal", 18))
sketch2.addConstraint(Sketcher.Constraint("Vertical", 22))
sketch2.addConstraint(Sketcher.Constraint("Vertical", 28))
sketch2.addConstraint(Sketcher.Constraint("Horizontal", 32))
sketch2.addConstraint(Sketcher.Constraint("Coincident", 0, 3, -1, 1))
sketch2.addConstraint(Sketcher.Constraint("Coincident", 5, 3, -1, 1))
sketch2.addConstraint(Sketcher.Constraint("Coincident", 13, 3, -1, 1))
sketch2.addConstraint(Sketcher.Constraint("Coincident", 17, 3, -1, 1))
sketch2.addConstraint(Sketcher.Constraint("Coincident", 20, 3, -1, 1))
sketch2.addConstraint(Sketcher.Constraint("Coincident", 24, 3, -1, 1))
sketch2.addConstraint(Sketcher.Constraint("Coincident", 26, 3, -1, 1))
sketch2.addConstraint(Sketcher.Constraint("Coincident", 30, 3, -1, 1))
sketch2.addConstraint(Sketcher.Constraint("Radius", 0, Q("13.000002 mm")))
sketch2.addConstraint(Sketcher.Constraint("Radius", 17, Q("13.000002 mm")))
sketch2.addConstraint(Sketcher.Constraint("Radius", 20, Q("13.000002 mm")))
sketch2.addConstraint(Sketcher.Constraint("Radius", 30, Q("13.000002 mm")))
sketch2.addConstraint(Sketcher.Constraint("Radius", 2, Q("2.5 mm")))
sketch2.addConstraint(Sketcher.Constraint("Radius", 9, Q("2.5 mm")))
sketch2.addConstraint(Sketcher.Constraint("Radius", 10, Q("2.5 mm")))
sketch2.addConstraint(Sketcher.Constraint("Radius", 16, Q("2.5 mm")))
sketch2.addConstraint(Sketcher.Constraint("Radius", 19, Q("2.5 mm")))
sketch2.addConstraint(Sketcher.Constraint("Radius", 21, Q("2.5 mm")))
sketch2.addConstraint(Sketcher.Constraint("Radius", 29, Q("2.5 mm")))
sketch2.addConstraint(Sketcher.Constraint("Radius", 31, Q("2.5 mm")))
sketch2.addConstraint(Sketcher.Constraint("DistanceY", -1, 1, 2, 3, Q("5 mm")))
sketch2.addConstraint(Sketcher.Constraint("DistanceX", 9, 3, -1, 1, Q("5 mm")))
sketch2.addConstraint(Sketcher.Constraint("DistanceX", -1, 1, 10, 3, Q("5 mm")))
sketch2.addConstraint(Sketcher.Constraint("DistanceY", -1, 1, 16, 3, Q("5 mm")))
sketch2.addConstraint(Sketcher.Constraint("DistanceY", 19, 3, -1, 1, Q("5 mm")))
sketch2.addConstraint(Sketcher.Constraint("DistanceX", 21, 3, -1, 1, Q("5 mm")))
sketch2.addConstraint(Sketcher.Constraint("DistanceX", -1, 1, 29, 3, Q("5 mm")))
sketch2.addConstraint(Sketcher.Constraint("DistanceY", 31, 3, -1, 1, Q("5 mm")))
sketch2.addConstraint(Sketcher.Constraint("DistanceY", -1, 1, 1, 2, Q("5 mm")))
sketch2.addConstraint(Sketcher.Constraint("DistanceY", -1, 1, 5, 1, Q("5 mm")))
sketch2.addConstraint(Sketcher.Constraint("DistanceY", 0, 3, 4, 3, Q("4.999999 mm")))
sketch2.addConstraint(Sketcher.Constraint("DistanceX", 7, 3, 0, 3, Q("4.999999 mm")))
sketch2.addConstraint(Sketcher.Constraint("DistanceX", 5, 3, 12, 3, Q("5.000002 mm")))
sketch2.addConstraint(Sketcher.Constraint("DistanceY", 0, 3, 14, 3, Q("4.999999 mm")))
sketch2.addConstraint(Sketcher.Constraint("DistanceX", 23, 3, 0, 3, Q("4.999999 mm")))
sketch2.addConstraint(Sketcher.Constraint("DistanceX", 17, 3, 27, 3, Q("4.999999 mm")))
sketch2.addConstraint(Sketcher.Constraint("DistanceX", 1, 2, 2, 2, Q("2.5 mm")))
sketch2.addConstraint(Sketcher.Constraint("DistanceX", 4, 3, 5, 1, Q("3.330001 mm")))
sketch2.addConstraint(Sketcher.Constraint("Radius", 1, Q("2.500015 mm")))
sketch2.addConstraint(Sketcher.Constraint("Radius", 6, Q("6.500065 mm")))
sketch2.addConstraint(Sketcher.Constraint("Radius", 13, Q("6.499993 mm")))
sketch2.addConstraint(Sketcher.Constraint("Radius", 24, Q("6.499993 mm")))
sketch2.addConstraint(Sketcher.Constraint("Radius", 25, Q("2.499998 mm")))
sketch2.addConstraint(Sketcher.Constraint("Radius", 26, Q("6.499993 mm")))
sketch2.addConstraint(Sketcher.Constraint("Radius", 33, Q("2.499998 mm")))
sketch2.addConstraint(Sketcher.Constraint("DistanceX", 3, 1, 3, 2, Q("1.749778 mm")))
sketch2.addConstraint(Sketcher.Constraint("DistanceX", 15, 1, 15, 2, Q("1.749778 mm")))
sketch2.addConstraint(Sketcher.Constraint("DistanceX", 18, 2, 18, 1, Q("1.749778 mm")))
sketch2.addConstraint(Sketcher.Constraint("DistanceX", 32, 2, 32, 1, Q("1.749778 mm")))
sketch2.addConstraint(Sketcher.Constraint("DistanceY", 8, 1, 8, 2, Q("1.749778 mm")))
sketch2.addConstraint(Sketcher.Constraint("DistanceY", 11, 2, 11, 1, Q("1.749778 mm")))
sketch2.addConstraint(Sketcher.Constraint("DistanceY", 22, 1, 22, 2, Q("1.749778 mm")))
sketch2.addConstraint(Sketcher.Constraint("DistanceY", 28, 2, 28, 1, Q("1.749778 mm")))
sketch2.addConstraint(Sketcher.Constraint("DistanceX", 3, 2, 4, 2, Q("2.078699 mm")))
sketch2.addConstraint(Sketcher.Constraint("DistanceX", 5, 1, 6, 1, Q("0.542201 mm")))
sketch2.addConstraint(Sketcher.Constraint("DistanceY", 6, 1, 7, 2, Q("2.078699 mm")))
sketch2.addConstraint(Sketcher.Constraint("DistanceY", 12, 2, 11, 2, Q("2.078699 mm")))
sketch2.addConstraint(Sketcher.Constraint("DistanceX", 13, 1, 14, 2, Q("2.078699 mm")))
sketch2.addConstraint(Sketcher.Constraint("DistanceY", 22, 2, 23, 2, Q("2.078699 mm")))
sketch2.addConstraint(Sketcher.Constraint("DistanceX", 25, 2, 24, 1, Q("2.078699 mm")))
sketch2.addConstraint(Sketcher.Constraint("DistanceY", 22, 2, 26, 1, Q("2.078699 mm")))
sketch2.addConstraint(Sketcher.Constraint("DistanceY", 27, 2, 26, 1, Q("2.078699 mm")))
sketch2.addConstraint(Sketcher.Constraint("DistanceX", 33, 2, 32, 2, Q("2.078699 mm")))
sketch2.addConstraint(Sketcher.Constraint("DistanceY", -1, 1, 4, 2, Q("3.611111 mm")))
sketch2.addConstraint(Sketcher.Constraint("DistanceY", -1, 1, 9, 2, Q("11.431448 mm")))
sketch2.addConstraint(Sketcher.Constraint("DistanceX", -1, 1, 12, 2, Q("3.611111 mm")))
sketch2.addConstraint(Sketcher.Constraint("DistanceY", -1, 1, 13, 1, Q("3.611111 mm")))
sketch2.addConstraint(Sketcher.Constraint("DistanceX", -1, 1, 16, 2, Q("11.431448 mm")))
sketch2.addConstraint(Sketcher.Constraint("DistanceX", 19, 2, -1, 1, Q("11.431448 mm")))
sketch2.addConstraint(Sketcher.Constraint("DistanceX", 23, 2, -1, 1, Q("3.611111 mm")))
sketch2.addConstraint(Sketcher.Constraint("DistanceY", 24, 1, -1, 1, Q("3.611111 mm")))
sketch2.addConstraint(Sketcher.Constraint("DistanceY", 29, 2, -1, 1, Q("11.431448 mm")))
sketch2.addConstraint(Sketcher.Constraint("DistanceY", 33, 2, -1, 1, Q("3.611111 mm")))
sketch2.addConstraint(Sketcher.Constraint("DistanceX", 4, 3, 6, 3, Q("7.48335 mm")))
sketch2.addConstraint(Sketcher.Constraint("DistanceX", 0, 2, 1, 3, Q("2.19837 mm")))
sketch2.addConstraint(Sketcher.Constraint("DistanceX", 12, 3, 17, 2, Q("1.190478 mm")))
sketch2.addConstraint(Sketcher.Constraint("DistanceX", 20, 2, 23, 3, Q("1.190478 mm")))
sketch2.addConstraint(Sketcher.Constraint("DistanceY", 30, 2, 33, 3, Q("1.190478 mm")))
pocket1 = body.newObject("PartDesign::Pocket", "Pocket")
pocket1.Profile = sketch2
pocket1.Length = 10

doc.recompute()
